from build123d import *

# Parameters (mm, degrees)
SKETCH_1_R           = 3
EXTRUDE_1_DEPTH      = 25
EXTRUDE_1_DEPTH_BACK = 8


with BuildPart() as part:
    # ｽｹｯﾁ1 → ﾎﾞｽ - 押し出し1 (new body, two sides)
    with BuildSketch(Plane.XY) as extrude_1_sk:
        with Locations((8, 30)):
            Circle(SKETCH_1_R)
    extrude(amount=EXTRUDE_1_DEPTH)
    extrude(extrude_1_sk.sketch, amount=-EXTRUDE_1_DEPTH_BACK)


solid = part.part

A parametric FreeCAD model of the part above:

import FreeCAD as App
import Part
import Sketcher

V = App.Vector
Q = App.Units.Quantity

doc = App.newDocument("Part")
body = doc.addObject("PartDesign::Body", "Body")

# Sketch on XY plane
sketch1 = body.newObject("Sketcher::SketchObject", "Sketch")
sketch1.AttachmentSupport = (doc.getObject("XY_Plane"), [""])
sketch1.MapMode = "FlatFace"
sketch1.addGeometry(Part.Circle(V(8, 30, 0), V(0, 0, 1), 3), False)
sketch1.addConstraint([
    Sketcher.Constraint("Diameter", 0, Q("6 mm")),
    Sketcher.Constraint("DistanceX", -1, 1, 0, 3, Q("8 mm")),
    Sketcher.Constraint("DistanceY", -1, 1, 0, 3, Q("30 mm")),
])
pad1 = body.newObject("PartDesign::Pad", "Pad")
pad1.Profile = sketch1
pad1.Type = "TwoLengths"
pad1.Length = 25
pad1.Length2 = 8

doc.recompute()
